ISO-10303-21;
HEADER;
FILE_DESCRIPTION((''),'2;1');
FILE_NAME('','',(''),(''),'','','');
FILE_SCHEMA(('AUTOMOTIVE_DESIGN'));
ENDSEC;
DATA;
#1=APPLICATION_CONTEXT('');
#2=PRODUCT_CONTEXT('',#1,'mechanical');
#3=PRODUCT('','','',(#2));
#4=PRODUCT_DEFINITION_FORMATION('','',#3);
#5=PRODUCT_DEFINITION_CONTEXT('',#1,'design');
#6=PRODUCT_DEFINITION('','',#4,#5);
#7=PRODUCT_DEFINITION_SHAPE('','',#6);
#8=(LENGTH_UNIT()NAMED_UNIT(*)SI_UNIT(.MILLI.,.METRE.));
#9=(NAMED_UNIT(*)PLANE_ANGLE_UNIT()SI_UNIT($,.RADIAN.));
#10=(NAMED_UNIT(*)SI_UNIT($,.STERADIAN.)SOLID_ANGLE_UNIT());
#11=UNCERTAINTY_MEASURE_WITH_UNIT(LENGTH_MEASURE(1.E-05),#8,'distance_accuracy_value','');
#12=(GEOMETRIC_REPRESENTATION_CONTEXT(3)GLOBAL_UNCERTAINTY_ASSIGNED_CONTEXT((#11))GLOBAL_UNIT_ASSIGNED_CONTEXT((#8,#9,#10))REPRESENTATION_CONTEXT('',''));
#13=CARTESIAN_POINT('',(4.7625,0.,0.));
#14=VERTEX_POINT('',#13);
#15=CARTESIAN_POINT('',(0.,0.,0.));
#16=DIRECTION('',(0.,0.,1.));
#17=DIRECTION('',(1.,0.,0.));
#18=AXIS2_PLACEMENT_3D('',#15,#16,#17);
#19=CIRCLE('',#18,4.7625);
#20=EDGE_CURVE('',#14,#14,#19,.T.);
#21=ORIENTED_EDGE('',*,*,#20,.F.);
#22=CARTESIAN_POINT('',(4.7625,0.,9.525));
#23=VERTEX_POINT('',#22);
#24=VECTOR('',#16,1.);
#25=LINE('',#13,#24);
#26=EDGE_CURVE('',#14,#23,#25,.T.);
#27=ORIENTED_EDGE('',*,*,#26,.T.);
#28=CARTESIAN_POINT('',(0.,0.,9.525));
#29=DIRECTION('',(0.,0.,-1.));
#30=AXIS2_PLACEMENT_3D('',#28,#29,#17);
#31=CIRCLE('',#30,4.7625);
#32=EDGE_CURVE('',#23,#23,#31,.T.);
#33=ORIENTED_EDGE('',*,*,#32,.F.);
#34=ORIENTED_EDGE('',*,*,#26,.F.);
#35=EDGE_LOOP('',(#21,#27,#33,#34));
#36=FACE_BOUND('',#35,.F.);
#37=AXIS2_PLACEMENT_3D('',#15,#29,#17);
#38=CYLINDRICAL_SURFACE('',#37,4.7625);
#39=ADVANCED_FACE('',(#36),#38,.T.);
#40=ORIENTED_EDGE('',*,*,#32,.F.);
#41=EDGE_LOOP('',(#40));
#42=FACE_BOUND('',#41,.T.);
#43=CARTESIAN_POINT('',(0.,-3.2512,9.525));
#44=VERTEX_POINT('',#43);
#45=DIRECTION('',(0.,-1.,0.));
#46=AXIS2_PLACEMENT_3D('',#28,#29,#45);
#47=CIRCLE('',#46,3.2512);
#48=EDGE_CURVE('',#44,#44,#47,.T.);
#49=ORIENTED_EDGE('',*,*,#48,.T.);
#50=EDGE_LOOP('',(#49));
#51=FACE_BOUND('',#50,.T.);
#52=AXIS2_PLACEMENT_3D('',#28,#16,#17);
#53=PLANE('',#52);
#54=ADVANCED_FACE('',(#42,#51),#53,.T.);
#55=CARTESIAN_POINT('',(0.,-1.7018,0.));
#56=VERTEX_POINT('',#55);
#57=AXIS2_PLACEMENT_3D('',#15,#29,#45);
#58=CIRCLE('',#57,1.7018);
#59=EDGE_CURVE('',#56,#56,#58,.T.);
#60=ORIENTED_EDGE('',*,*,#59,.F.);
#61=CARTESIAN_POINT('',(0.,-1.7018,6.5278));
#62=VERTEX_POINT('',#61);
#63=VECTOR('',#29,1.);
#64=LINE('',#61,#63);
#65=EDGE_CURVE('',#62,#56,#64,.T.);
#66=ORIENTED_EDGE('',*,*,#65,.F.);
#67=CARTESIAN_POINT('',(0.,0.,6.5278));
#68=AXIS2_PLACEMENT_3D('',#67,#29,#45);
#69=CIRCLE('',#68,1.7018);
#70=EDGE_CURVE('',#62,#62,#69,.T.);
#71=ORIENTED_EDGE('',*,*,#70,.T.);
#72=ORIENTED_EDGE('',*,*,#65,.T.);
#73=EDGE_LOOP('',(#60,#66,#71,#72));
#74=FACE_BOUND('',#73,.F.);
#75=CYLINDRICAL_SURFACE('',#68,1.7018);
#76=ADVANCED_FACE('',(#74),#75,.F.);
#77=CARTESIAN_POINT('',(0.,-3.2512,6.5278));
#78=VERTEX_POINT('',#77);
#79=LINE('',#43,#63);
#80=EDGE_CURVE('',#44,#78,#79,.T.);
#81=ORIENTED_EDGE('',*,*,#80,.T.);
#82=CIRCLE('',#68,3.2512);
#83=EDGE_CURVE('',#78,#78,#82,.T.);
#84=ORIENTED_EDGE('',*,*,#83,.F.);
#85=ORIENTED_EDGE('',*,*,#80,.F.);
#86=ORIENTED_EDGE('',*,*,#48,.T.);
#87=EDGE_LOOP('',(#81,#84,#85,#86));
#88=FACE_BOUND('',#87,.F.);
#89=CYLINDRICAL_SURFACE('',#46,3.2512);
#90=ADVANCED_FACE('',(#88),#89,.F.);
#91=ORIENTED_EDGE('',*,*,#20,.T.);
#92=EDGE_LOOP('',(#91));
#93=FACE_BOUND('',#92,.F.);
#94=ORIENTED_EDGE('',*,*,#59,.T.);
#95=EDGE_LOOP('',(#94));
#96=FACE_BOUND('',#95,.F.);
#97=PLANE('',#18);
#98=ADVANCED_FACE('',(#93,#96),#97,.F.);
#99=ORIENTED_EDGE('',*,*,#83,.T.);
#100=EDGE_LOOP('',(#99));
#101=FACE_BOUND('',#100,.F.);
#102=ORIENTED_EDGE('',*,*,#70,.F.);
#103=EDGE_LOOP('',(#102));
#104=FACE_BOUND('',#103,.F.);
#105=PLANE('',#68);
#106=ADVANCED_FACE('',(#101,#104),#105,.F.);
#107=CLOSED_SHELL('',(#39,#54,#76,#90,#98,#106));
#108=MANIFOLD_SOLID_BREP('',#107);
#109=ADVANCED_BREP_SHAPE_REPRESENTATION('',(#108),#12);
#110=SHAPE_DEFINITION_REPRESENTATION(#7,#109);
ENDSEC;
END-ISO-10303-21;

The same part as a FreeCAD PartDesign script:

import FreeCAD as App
import Part
import Sketcher
from FreeCAD import Vector
Q = App.Units.Quantity

doc = App.newDocument("Part")
body = doc.addObject("PartDesign::Body", "Body")

sketch1 = body.newObject("Sketcher::SketchObject", "Sketch")
sketch1.AttachmentSupport = (doc.getObject("XY_Plane"), [""])
sketch1.MapMode = "FlatFace"
sketch1.addGeometry(Part.Circle(Vector(0, 0, 0), Vector(0, 0, 1), 4.8), False)
sketch1.addConstraint(Sketcher.Constraint("Coincident", 0, 3, -1, 1))
sketch1.addConstraint(Sketcher.Constraint("Diameter", 0, Q("0.375 in")))
pad1 = body.newObject("PartDesign::Pad", "Pad")
pad1.Profile = sketch1
pad1.Length = Q("0.375 in")

sketch2 = body.newObject("Sketcher::SketchObject", "Sketch001")
sketch2.AttachmentSupport = (doc.getObject("XY_Plane"), [""])
sketch2.MapMode = "FlatFace"
sketch2.AttachmentOffset = App.Placement(Vector(0, 0, 0.375 * 25.4), App.Rotation())
sketch2.addGeometry(Part.Circle(Vector(0, 0, 0), Vector(0, 0, 1), 1.7), False)
sketch2.addConstraint(Sketcher.Constraint("Coincident", 0, 3, -1, 1))
sketch2.addConstraint(Sketcher.Constraint("Diameter", 0, Q("0.134 in")))
doc.recompute()
hole = body.newObject("PartDesign::Hole", "Hole")
hole.Profile = sketch2
hole.ThreadType = "None"
hole.Diameter = Q("0.134 in")
hole.DepthType = "ThroughAll"
hole.HoleCutType = "Counterbore"
hole.HoleCutDiameter = Q("0.256 in")
hole.HoleCutDepth = Q("0.118 in")

doc.recompute()
